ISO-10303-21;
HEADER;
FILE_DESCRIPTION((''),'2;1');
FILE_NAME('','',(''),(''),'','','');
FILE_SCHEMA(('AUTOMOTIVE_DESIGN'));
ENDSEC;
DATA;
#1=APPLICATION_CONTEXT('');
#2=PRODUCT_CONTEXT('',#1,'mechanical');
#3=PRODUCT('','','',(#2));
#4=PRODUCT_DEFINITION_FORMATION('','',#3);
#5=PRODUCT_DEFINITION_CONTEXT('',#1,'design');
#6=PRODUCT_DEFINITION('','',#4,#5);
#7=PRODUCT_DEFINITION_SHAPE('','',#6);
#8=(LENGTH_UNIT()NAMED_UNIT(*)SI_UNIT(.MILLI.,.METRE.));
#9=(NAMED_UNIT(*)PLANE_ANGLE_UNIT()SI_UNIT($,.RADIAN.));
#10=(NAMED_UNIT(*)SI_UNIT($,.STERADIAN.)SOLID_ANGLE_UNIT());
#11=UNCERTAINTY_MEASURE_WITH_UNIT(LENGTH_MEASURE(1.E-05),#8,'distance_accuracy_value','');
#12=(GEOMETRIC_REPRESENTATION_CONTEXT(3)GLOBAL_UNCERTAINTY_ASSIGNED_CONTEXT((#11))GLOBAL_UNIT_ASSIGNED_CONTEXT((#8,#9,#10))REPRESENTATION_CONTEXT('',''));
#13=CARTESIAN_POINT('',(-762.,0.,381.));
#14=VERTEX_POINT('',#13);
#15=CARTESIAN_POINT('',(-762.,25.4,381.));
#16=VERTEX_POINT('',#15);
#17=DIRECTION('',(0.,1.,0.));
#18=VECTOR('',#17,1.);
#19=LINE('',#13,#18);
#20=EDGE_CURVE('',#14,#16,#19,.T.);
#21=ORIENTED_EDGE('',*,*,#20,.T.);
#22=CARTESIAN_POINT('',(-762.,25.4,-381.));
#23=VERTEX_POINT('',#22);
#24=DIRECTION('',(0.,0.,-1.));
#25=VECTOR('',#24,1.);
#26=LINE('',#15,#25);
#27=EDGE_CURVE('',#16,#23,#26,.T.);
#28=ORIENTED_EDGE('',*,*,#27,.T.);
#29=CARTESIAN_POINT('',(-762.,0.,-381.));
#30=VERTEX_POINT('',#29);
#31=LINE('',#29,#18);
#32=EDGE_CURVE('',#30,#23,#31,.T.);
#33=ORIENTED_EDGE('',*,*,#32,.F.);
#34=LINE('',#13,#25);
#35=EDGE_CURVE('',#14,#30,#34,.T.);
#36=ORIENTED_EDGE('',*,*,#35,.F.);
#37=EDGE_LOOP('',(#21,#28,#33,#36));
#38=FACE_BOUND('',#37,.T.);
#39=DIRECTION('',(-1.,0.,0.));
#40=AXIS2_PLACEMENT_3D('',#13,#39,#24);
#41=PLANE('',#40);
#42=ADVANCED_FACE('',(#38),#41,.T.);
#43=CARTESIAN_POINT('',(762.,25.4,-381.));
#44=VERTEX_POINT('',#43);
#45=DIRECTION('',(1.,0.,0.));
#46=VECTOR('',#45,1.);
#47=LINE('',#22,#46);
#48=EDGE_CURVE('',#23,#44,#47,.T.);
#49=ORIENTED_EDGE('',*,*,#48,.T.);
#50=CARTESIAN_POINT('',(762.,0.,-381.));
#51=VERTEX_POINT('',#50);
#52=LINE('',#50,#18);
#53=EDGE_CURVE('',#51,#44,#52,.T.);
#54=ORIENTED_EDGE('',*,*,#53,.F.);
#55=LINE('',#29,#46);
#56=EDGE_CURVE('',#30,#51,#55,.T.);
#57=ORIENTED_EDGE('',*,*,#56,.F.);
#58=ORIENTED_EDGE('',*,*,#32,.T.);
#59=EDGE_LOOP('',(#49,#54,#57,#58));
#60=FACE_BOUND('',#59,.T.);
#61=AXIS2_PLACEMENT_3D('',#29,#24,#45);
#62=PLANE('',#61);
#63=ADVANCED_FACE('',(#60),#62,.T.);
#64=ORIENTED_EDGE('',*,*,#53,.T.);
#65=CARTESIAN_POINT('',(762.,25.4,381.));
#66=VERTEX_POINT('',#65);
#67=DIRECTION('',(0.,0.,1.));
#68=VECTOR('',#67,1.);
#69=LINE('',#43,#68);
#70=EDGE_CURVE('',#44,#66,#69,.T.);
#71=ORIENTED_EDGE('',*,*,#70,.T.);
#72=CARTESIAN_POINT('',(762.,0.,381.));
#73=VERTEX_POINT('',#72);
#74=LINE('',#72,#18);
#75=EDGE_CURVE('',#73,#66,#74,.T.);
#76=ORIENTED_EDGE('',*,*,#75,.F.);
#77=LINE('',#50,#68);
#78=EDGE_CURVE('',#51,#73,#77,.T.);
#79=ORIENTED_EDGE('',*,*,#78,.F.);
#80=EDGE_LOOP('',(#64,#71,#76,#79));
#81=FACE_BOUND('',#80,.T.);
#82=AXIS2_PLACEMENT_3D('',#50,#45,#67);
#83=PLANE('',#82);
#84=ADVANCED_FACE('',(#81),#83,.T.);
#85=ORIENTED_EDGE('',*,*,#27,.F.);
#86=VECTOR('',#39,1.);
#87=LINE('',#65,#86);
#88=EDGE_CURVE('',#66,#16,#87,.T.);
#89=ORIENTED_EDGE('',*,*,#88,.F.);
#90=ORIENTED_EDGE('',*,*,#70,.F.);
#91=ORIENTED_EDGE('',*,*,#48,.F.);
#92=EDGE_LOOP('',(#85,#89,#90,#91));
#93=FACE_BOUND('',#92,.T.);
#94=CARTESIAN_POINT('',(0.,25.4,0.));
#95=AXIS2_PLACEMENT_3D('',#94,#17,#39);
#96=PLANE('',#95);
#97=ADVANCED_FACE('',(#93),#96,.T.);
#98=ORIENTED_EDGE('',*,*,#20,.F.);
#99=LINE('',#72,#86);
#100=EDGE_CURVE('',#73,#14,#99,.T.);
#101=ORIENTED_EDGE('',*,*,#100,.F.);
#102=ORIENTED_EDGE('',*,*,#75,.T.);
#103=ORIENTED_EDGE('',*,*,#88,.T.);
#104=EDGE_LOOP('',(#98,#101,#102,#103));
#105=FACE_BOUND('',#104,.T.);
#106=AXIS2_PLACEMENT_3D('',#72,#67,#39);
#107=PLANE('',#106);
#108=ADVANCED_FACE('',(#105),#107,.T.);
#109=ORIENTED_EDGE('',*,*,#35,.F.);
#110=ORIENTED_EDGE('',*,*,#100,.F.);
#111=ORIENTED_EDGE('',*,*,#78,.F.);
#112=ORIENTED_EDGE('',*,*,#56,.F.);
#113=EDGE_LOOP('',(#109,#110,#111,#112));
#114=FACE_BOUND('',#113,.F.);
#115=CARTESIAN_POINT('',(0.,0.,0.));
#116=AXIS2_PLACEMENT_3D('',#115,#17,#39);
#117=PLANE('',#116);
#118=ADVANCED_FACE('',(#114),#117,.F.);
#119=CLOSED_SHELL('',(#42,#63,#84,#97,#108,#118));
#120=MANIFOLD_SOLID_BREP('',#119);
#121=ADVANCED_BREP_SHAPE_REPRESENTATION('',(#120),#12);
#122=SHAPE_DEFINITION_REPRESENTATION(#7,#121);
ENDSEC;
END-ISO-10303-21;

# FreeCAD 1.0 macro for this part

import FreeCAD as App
import Part
import Sketcher
Q = App.Units.Quantity

doc = App.newDocument("Part")
body = doc.addObject("PartDesign::Body", "Body")

sketch1 = doc.addObject("Sketcher::SketchObject", "Sketch")
body.addObject(sketch1)
sketch1.AttachmentSupport = (doc.XZ_Plane, [""])
sketch1.MapMode = "FlatFace"
sketch1.addGeometry([
    Part.LineSegment(App.Vector(762, -381, 0), App.Vector(-762, -381, 0)),
    Part.LineSegment(App.Vector(-762, -381, 0), App.Vector(-762, 381, 0)),
    Part.LineSegment(App.Vector(-762, 381, 0), App.Vector(762, 381, 0)),
    Part.LineSegment(App.Vector(762, 381, 0), App.Vector(762, -381, 0)),
], False)
sketch1.addConstraint([
    Sketcher.Constraint("Coincident", 0, 2, 1, 1),
    Sketcher.Constraint("Coincident", 1, 2, 2, 1),
    Sketcher.Constraint("Coincident", 2, 2, 3, 1),
    Sketcher.Constraint("Coincident", 3, 2, 0, 1),
    Sketcher.Constraint("Horizontal", 0),
    Sketcher.Constraint("Vertical", 1),
    Sketcher.Constraint("Horizontal", 2),
    Sketcher.Constraint("Vertical", 3),
    Sketcher.Constraint("Symmetric", 0, 2, 2, 2, -1, 1),
    Sketcher.Constraint("DistanceX", 0, 2, 0, 1, Q("60 in")),
    Sketcher.Constraint("DistanceY", 1, 1, 1, 2, Q("30 in")),
])
pad1 = doc.addObject("PartDesign::Pad", "Pad")
body.addObject(pad1)
pad1.Profile = sketch1
pad1.Length = Q("1 in")
pad1.Reversed = True

doc.recompute()
